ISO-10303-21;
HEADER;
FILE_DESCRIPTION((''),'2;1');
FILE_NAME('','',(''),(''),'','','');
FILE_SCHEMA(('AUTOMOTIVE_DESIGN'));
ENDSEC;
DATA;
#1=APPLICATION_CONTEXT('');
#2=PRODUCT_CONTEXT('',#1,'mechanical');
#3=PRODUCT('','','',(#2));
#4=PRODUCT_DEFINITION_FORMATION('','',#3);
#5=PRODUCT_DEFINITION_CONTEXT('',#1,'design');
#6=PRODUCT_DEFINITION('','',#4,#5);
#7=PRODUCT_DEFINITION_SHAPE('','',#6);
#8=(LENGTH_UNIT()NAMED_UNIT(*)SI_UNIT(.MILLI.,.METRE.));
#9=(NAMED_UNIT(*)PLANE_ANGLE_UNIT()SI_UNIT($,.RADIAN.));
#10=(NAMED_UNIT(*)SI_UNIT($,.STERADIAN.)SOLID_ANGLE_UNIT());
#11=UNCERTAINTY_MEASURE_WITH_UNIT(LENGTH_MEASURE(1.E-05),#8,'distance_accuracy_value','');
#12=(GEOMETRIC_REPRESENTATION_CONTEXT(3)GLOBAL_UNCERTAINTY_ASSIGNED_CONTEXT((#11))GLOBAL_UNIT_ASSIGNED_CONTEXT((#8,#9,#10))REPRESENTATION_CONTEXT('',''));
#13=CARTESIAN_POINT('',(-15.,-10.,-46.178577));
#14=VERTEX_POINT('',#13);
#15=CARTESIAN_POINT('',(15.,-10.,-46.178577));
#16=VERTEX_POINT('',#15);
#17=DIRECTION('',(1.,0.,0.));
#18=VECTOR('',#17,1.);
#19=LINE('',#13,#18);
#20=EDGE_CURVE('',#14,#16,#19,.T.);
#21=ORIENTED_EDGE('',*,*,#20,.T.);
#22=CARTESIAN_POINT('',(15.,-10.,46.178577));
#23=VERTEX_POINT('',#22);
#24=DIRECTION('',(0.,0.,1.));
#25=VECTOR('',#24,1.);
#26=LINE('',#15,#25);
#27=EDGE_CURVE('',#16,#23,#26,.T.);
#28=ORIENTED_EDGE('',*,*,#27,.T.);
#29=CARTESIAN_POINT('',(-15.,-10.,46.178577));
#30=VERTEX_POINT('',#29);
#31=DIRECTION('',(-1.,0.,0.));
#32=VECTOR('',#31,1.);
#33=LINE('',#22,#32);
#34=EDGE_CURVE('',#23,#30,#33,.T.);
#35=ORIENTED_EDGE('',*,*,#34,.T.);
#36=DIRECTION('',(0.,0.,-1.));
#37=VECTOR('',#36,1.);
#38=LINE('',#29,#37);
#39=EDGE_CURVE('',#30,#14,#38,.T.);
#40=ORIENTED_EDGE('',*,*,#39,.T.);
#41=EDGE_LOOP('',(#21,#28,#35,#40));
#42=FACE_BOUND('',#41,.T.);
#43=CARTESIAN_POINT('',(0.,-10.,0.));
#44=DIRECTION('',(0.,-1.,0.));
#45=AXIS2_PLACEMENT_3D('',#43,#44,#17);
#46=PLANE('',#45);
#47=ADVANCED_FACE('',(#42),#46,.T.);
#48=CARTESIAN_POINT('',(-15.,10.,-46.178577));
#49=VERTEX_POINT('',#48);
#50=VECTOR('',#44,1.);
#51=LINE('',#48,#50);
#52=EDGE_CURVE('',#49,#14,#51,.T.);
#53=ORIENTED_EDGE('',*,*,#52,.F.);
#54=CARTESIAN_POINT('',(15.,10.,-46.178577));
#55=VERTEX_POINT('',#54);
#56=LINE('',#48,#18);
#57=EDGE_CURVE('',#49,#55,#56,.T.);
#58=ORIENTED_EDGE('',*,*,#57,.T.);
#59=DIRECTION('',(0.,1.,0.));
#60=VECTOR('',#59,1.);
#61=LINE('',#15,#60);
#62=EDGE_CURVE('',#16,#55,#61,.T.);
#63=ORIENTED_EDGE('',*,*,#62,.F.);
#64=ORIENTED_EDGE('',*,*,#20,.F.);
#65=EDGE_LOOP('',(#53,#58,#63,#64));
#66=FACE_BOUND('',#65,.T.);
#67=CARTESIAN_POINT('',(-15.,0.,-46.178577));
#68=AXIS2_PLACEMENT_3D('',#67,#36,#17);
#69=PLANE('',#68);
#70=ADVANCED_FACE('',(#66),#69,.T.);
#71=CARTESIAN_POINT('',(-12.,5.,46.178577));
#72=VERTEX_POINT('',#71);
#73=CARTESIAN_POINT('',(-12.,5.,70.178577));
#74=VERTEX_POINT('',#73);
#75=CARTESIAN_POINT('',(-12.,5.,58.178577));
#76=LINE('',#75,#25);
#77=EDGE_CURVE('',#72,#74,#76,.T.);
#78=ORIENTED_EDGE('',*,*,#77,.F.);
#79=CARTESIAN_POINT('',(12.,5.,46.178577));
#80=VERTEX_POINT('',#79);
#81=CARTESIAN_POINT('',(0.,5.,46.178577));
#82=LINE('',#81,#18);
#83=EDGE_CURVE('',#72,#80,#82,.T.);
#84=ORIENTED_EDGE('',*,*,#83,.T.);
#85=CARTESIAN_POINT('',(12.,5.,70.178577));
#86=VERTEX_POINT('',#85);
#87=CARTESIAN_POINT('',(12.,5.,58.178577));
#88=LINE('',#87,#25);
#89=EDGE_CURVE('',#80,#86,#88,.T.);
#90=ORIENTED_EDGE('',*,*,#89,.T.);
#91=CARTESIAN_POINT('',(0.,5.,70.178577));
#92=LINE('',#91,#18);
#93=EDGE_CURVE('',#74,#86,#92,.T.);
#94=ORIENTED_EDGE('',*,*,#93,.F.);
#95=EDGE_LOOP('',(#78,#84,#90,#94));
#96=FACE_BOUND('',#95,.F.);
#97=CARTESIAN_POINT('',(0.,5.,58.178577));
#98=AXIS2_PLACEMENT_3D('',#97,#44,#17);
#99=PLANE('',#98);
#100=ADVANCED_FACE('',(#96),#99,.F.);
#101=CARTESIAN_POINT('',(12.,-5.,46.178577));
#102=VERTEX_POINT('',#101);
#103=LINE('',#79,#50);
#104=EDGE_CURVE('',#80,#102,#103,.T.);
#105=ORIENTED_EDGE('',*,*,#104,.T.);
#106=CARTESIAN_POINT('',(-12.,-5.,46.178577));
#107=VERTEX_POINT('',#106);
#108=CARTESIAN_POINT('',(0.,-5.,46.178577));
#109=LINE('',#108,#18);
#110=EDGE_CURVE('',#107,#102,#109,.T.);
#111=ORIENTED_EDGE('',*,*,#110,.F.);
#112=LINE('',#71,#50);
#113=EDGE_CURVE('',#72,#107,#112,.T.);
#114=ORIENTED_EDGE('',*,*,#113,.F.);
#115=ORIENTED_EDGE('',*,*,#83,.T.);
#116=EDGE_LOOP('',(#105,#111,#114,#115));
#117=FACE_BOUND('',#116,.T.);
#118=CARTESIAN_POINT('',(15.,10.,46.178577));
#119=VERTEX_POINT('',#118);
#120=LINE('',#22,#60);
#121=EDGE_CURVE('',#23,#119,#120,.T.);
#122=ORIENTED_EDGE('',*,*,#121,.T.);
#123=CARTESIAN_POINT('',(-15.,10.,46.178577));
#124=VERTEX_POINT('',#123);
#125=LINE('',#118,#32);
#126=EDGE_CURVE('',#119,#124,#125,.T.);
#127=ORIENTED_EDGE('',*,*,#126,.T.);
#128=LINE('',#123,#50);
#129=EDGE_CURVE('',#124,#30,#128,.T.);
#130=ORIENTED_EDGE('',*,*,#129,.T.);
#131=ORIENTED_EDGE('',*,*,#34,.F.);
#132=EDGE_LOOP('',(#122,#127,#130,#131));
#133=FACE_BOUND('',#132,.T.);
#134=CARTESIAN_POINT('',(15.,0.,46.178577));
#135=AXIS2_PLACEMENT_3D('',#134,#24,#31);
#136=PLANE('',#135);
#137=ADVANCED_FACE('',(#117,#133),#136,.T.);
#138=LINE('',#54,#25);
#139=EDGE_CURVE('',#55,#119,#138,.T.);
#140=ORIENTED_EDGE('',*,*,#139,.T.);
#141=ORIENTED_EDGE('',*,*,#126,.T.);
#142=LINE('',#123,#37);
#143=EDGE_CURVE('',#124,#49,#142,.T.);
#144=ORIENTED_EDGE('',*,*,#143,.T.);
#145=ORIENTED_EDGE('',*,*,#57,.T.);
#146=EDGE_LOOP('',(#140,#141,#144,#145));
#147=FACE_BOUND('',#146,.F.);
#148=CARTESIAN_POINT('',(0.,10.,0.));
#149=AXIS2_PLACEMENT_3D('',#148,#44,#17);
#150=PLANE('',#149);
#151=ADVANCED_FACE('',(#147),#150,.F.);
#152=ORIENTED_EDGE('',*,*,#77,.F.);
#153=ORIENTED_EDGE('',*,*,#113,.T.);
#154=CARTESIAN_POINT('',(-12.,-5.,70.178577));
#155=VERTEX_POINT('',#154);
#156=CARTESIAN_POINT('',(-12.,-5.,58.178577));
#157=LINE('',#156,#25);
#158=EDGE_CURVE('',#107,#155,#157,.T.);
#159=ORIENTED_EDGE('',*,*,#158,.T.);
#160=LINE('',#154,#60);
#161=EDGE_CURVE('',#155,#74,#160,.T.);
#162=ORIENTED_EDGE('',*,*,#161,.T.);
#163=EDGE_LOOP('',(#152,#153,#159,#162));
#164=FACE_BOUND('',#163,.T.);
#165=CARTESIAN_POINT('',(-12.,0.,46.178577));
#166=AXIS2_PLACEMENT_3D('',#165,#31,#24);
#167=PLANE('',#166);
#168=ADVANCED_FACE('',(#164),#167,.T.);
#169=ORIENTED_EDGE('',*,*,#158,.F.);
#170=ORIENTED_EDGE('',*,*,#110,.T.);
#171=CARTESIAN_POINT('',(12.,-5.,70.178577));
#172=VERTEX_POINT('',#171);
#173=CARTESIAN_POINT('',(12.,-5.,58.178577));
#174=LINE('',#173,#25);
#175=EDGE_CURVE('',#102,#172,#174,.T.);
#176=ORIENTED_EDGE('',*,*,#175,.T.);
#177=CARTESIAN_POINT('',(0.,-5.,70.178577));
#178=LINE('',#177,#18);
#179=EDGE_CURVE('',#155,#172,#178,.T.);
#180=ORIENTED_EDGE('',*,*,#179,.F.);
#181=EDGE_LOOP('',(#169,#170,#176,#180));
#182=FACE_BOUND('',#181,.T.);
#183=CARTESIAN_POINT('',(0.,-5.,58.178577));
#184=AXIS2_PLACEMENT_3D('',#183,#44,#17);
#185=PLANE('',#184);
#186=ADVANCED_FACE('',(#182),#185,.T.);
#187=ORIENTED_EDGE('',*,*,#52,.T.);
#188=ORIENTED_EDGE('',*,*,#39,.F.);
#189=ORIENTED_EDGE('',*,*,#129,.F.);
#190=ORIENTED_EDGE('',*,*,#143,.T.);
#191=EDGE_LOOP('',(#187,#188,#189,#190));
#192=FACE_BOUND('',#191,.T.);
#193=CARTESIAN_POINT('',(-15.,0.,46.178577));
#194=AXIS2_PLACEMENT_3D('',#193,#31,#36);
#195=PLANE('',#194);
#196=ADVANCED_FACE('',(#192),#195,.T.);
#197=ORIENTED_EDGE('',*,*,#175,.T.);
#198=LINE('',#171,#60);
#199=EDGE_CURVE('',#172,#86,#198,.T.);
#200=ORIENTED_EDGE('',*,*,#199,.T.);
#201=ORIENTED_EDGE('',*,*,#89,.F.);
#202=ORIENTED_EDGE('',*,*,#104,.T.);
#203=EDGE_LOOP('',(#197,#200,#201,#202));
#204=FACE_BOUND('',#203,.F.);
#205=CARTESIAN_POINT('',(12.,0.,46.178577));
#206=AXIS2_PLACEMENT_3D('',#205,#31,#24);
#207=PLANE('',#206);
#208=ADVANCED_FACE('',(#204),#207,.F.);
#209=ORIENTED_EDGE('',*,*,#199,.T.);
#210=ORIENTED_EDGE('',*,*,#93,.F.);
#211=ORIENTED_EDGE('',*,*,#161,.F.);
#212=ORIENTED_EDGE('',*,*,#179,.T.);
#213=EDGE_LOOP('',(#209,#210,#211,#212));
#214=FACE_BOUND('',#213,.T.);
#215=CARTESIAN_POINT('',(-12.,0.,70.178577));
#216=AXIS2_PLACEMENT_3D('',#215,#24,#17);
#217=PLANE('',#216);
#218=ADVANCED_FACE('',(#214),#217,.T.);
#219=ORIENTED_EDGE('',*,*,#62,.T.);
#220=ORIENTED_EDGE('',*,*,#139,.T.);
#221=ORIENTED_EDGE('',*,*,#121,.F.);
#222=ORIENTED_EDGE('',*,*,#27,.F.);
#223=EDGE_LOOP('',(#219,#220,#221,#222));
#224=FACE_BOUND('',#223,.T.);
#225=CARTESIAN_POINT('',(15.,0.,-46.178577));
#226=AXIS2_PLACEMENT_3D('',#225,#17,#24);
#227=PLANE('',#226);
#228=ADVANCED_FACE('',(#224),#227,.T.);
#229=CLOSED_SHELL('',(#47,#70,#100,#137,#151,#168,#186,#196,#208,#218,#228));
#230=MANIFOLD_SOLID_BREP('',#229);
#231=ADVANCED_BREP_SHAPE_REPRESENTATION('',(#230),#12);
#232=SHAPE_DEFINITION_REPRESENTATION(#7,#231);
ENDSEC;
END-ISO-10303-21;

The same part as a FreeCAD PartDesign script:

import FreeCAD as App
import Part
import Sketcher
Q = App.Units.Quantity


def add_polygon(sketch, points):
    """Adds a closed chain of lines whose ends are joined by coincident constraints."""
    first, n = sketch.GeometryCount, len(points)
    for a, b in zip(points, points[1:] + points[:1]):
        sketch.addGeometry(Part.LineSegment(App.Vector(*a, 0), App.Vector(*b, 0)), False)
    for i in range(n):
        sketch.addConstraint(Sketcher.Constraint("Coincident", first + i, 2, first + (i + 1) % n, 1))

doc = App.newDocument("Part")
body = doc.addObject("PartDesign::Body", "Body")

sketch1 = doc.addObject("Sketcher::SketchObject", "Sketch")
body.addObject(sketch1)
sketch1.AttachmentSupport = (doc.XZ_Plane, [""])
sketch1.MapMode = "FlatFace"
add_polygon(sketch1, [(15, 46), (-15, 46), (-15, -46), (15, -46)])
sketch1.addConstraint(Sketcher.Constraint("Horizontal", 0))
sketch1.addConstraint(Sketcher.Constraint("Vertical", 1))
sketch1.addConstraint(Sketcher.Constraint("Horizontal", 2))
sketch1.addConstraint(Sketcher.Constraint("Vertical", 3))
sketch1.addConstraint(Sketcher.Constraint("Symmetric", 0, 2, 2, 2, -1, 1))
sketch1.addConstraint(Sketcher.Constraint("DistanceX", 0, 2, 0, 1, Q("30 mm")))
sketch1.addConstraint(Sketcher.Constraint("DistanceY", 1, 2, 1, 1, Q("92.357154 mm")))
pad1 = doc.addObject("PartDesign::Pad", "Pad")
body.addObject(pad1)
pad1.Profile = sketch1
pad1.Length = 10

sketch2 = doc.addObject("Sketcher::SketchObject", "Sketch001")
body.addObject(sketch2)
sketch2.AttachmentSupport = (doc.XZ_Plane, [""])
sketch2.MapMode = "FlatFace"
add_polygon(sketch2, [(15, 46), (-15, 46), (-15, -46), (15, -46)])
sketch2.addConstraint(Sketcher.Constraint("Horizontal", 0))
sketch2.addConstraint(Sketcher.Constraint("Vertical", 1))
sketch2.addConstraint(Sketcher.Constraint("Horizontal", 2))
sketch2.addConstraint(Sketcher.Constraint("Vertical", 3))
sketch2.addConstraint(Sketcher.Constraint("Symmetric", 0, 2, 2, 2, -1, 1))
sketch2.addConstraint(Sketcher.Constraint("DistanceX", 0, 2, 0, 1, Q("30 mm")))
sketch2.addConstraint(Sketcher.Constraint("DistanceY", 1, 2, 1, 1, Q("92.357154 mm")))
pad2 = doc.addObject("PartDesign::Pad", "Pad001")
body.addObject(pad2)
pad2.Profile = sketch2
pad2.Length = 10
pad2.Reversed = True

sketch3 = doc.addObject("Sketcher::SketchObject", "Sketch002")
body.addObject(sketch3)
sketch3.AttachmentSupport = (doc.XZ_Plane, [""])
sketch3.MapMode = "FlatFace"
add_polygon(sketch3, [(-12, 70), (-12, 46), (12, 46), (12, 70)])
sketch3.addConstraint(Sketcher.Constraint("Vertical", 0))
sketch3.addConstraint(Sketcher.Constraint("Horizontal", 1))
sketch3.addConstraint(Sketcher.Constraint("Vertical", 2))
sketch3.addConstraint(Sketcher.Constraint("Horizontal", 3))
sketch3.addConstraint(Sketcher.Constraint("Equal", 3, 0))
sketch3.addConstraint(Sketcher.Constraint("DistanceX", 1, 1, 1, 2, Q("24 mm")))
sketch3.addConstraint(Sketcher.Constraint("DistanceX", 0, 2, -1, 1, Q("12 mm")))
sketch3.addConstraint(Sketcher.Constraint("DistanceY", -1, 1, 0, 2, Q("46.178577 mm")))
pad3 = doc.addObject("PartDesign::Pad", "Pad002")
body.addObject(pad3)
pad3.Profile = sketch3
pad3.Length = 5
pad3.Reversed = True

sketch4 = doc.addObject("Sketcher::SketchObject", "Sketch003")
body.addObject(sketch4)
sketch4.AttachmentSupport = (doc.XZ_Plane, [""])
sketch4.MapMode = "FlatFace"
add_polygon(sketch4, [(-12, 70), (-12, 46), (12, 46), (12, 70)])
sketch4.addConstraint(Sketcher.Constraint("Vertical", 0))
sketch4.addConstraint(Sketcher.Constraint("Horizontal", 1))
sketch4.addConstraint(Sketcher.Constraint("Vertical", 2))
sketch4.addConstraint(Sketcher.Constraint("Horizontal", 3))
sketch4.addConstraint(Sketcher.Constraint("Equal", 3, 0))
sketch4.addConstraint(Sketcher.Constraint("DistanceX", 1, 1, 1, 2, Q("24 mm")))
sketch4.addConstraint(Sketcher.Constraint("DistanceX", 0, 2, -1, 1, Q("12 mm")))
sketch4.addConstraint(Sketcher.Constraint("DistanceY", -1, 1, 0, 2, Q("46.178577 mm")))
pad4 = doc.addObject("PartDesign::Pad", "Pad003")
body.addObject(pad4)
pad4.Profile = sketch4
pad4.Length = 5

doc.recompute()
